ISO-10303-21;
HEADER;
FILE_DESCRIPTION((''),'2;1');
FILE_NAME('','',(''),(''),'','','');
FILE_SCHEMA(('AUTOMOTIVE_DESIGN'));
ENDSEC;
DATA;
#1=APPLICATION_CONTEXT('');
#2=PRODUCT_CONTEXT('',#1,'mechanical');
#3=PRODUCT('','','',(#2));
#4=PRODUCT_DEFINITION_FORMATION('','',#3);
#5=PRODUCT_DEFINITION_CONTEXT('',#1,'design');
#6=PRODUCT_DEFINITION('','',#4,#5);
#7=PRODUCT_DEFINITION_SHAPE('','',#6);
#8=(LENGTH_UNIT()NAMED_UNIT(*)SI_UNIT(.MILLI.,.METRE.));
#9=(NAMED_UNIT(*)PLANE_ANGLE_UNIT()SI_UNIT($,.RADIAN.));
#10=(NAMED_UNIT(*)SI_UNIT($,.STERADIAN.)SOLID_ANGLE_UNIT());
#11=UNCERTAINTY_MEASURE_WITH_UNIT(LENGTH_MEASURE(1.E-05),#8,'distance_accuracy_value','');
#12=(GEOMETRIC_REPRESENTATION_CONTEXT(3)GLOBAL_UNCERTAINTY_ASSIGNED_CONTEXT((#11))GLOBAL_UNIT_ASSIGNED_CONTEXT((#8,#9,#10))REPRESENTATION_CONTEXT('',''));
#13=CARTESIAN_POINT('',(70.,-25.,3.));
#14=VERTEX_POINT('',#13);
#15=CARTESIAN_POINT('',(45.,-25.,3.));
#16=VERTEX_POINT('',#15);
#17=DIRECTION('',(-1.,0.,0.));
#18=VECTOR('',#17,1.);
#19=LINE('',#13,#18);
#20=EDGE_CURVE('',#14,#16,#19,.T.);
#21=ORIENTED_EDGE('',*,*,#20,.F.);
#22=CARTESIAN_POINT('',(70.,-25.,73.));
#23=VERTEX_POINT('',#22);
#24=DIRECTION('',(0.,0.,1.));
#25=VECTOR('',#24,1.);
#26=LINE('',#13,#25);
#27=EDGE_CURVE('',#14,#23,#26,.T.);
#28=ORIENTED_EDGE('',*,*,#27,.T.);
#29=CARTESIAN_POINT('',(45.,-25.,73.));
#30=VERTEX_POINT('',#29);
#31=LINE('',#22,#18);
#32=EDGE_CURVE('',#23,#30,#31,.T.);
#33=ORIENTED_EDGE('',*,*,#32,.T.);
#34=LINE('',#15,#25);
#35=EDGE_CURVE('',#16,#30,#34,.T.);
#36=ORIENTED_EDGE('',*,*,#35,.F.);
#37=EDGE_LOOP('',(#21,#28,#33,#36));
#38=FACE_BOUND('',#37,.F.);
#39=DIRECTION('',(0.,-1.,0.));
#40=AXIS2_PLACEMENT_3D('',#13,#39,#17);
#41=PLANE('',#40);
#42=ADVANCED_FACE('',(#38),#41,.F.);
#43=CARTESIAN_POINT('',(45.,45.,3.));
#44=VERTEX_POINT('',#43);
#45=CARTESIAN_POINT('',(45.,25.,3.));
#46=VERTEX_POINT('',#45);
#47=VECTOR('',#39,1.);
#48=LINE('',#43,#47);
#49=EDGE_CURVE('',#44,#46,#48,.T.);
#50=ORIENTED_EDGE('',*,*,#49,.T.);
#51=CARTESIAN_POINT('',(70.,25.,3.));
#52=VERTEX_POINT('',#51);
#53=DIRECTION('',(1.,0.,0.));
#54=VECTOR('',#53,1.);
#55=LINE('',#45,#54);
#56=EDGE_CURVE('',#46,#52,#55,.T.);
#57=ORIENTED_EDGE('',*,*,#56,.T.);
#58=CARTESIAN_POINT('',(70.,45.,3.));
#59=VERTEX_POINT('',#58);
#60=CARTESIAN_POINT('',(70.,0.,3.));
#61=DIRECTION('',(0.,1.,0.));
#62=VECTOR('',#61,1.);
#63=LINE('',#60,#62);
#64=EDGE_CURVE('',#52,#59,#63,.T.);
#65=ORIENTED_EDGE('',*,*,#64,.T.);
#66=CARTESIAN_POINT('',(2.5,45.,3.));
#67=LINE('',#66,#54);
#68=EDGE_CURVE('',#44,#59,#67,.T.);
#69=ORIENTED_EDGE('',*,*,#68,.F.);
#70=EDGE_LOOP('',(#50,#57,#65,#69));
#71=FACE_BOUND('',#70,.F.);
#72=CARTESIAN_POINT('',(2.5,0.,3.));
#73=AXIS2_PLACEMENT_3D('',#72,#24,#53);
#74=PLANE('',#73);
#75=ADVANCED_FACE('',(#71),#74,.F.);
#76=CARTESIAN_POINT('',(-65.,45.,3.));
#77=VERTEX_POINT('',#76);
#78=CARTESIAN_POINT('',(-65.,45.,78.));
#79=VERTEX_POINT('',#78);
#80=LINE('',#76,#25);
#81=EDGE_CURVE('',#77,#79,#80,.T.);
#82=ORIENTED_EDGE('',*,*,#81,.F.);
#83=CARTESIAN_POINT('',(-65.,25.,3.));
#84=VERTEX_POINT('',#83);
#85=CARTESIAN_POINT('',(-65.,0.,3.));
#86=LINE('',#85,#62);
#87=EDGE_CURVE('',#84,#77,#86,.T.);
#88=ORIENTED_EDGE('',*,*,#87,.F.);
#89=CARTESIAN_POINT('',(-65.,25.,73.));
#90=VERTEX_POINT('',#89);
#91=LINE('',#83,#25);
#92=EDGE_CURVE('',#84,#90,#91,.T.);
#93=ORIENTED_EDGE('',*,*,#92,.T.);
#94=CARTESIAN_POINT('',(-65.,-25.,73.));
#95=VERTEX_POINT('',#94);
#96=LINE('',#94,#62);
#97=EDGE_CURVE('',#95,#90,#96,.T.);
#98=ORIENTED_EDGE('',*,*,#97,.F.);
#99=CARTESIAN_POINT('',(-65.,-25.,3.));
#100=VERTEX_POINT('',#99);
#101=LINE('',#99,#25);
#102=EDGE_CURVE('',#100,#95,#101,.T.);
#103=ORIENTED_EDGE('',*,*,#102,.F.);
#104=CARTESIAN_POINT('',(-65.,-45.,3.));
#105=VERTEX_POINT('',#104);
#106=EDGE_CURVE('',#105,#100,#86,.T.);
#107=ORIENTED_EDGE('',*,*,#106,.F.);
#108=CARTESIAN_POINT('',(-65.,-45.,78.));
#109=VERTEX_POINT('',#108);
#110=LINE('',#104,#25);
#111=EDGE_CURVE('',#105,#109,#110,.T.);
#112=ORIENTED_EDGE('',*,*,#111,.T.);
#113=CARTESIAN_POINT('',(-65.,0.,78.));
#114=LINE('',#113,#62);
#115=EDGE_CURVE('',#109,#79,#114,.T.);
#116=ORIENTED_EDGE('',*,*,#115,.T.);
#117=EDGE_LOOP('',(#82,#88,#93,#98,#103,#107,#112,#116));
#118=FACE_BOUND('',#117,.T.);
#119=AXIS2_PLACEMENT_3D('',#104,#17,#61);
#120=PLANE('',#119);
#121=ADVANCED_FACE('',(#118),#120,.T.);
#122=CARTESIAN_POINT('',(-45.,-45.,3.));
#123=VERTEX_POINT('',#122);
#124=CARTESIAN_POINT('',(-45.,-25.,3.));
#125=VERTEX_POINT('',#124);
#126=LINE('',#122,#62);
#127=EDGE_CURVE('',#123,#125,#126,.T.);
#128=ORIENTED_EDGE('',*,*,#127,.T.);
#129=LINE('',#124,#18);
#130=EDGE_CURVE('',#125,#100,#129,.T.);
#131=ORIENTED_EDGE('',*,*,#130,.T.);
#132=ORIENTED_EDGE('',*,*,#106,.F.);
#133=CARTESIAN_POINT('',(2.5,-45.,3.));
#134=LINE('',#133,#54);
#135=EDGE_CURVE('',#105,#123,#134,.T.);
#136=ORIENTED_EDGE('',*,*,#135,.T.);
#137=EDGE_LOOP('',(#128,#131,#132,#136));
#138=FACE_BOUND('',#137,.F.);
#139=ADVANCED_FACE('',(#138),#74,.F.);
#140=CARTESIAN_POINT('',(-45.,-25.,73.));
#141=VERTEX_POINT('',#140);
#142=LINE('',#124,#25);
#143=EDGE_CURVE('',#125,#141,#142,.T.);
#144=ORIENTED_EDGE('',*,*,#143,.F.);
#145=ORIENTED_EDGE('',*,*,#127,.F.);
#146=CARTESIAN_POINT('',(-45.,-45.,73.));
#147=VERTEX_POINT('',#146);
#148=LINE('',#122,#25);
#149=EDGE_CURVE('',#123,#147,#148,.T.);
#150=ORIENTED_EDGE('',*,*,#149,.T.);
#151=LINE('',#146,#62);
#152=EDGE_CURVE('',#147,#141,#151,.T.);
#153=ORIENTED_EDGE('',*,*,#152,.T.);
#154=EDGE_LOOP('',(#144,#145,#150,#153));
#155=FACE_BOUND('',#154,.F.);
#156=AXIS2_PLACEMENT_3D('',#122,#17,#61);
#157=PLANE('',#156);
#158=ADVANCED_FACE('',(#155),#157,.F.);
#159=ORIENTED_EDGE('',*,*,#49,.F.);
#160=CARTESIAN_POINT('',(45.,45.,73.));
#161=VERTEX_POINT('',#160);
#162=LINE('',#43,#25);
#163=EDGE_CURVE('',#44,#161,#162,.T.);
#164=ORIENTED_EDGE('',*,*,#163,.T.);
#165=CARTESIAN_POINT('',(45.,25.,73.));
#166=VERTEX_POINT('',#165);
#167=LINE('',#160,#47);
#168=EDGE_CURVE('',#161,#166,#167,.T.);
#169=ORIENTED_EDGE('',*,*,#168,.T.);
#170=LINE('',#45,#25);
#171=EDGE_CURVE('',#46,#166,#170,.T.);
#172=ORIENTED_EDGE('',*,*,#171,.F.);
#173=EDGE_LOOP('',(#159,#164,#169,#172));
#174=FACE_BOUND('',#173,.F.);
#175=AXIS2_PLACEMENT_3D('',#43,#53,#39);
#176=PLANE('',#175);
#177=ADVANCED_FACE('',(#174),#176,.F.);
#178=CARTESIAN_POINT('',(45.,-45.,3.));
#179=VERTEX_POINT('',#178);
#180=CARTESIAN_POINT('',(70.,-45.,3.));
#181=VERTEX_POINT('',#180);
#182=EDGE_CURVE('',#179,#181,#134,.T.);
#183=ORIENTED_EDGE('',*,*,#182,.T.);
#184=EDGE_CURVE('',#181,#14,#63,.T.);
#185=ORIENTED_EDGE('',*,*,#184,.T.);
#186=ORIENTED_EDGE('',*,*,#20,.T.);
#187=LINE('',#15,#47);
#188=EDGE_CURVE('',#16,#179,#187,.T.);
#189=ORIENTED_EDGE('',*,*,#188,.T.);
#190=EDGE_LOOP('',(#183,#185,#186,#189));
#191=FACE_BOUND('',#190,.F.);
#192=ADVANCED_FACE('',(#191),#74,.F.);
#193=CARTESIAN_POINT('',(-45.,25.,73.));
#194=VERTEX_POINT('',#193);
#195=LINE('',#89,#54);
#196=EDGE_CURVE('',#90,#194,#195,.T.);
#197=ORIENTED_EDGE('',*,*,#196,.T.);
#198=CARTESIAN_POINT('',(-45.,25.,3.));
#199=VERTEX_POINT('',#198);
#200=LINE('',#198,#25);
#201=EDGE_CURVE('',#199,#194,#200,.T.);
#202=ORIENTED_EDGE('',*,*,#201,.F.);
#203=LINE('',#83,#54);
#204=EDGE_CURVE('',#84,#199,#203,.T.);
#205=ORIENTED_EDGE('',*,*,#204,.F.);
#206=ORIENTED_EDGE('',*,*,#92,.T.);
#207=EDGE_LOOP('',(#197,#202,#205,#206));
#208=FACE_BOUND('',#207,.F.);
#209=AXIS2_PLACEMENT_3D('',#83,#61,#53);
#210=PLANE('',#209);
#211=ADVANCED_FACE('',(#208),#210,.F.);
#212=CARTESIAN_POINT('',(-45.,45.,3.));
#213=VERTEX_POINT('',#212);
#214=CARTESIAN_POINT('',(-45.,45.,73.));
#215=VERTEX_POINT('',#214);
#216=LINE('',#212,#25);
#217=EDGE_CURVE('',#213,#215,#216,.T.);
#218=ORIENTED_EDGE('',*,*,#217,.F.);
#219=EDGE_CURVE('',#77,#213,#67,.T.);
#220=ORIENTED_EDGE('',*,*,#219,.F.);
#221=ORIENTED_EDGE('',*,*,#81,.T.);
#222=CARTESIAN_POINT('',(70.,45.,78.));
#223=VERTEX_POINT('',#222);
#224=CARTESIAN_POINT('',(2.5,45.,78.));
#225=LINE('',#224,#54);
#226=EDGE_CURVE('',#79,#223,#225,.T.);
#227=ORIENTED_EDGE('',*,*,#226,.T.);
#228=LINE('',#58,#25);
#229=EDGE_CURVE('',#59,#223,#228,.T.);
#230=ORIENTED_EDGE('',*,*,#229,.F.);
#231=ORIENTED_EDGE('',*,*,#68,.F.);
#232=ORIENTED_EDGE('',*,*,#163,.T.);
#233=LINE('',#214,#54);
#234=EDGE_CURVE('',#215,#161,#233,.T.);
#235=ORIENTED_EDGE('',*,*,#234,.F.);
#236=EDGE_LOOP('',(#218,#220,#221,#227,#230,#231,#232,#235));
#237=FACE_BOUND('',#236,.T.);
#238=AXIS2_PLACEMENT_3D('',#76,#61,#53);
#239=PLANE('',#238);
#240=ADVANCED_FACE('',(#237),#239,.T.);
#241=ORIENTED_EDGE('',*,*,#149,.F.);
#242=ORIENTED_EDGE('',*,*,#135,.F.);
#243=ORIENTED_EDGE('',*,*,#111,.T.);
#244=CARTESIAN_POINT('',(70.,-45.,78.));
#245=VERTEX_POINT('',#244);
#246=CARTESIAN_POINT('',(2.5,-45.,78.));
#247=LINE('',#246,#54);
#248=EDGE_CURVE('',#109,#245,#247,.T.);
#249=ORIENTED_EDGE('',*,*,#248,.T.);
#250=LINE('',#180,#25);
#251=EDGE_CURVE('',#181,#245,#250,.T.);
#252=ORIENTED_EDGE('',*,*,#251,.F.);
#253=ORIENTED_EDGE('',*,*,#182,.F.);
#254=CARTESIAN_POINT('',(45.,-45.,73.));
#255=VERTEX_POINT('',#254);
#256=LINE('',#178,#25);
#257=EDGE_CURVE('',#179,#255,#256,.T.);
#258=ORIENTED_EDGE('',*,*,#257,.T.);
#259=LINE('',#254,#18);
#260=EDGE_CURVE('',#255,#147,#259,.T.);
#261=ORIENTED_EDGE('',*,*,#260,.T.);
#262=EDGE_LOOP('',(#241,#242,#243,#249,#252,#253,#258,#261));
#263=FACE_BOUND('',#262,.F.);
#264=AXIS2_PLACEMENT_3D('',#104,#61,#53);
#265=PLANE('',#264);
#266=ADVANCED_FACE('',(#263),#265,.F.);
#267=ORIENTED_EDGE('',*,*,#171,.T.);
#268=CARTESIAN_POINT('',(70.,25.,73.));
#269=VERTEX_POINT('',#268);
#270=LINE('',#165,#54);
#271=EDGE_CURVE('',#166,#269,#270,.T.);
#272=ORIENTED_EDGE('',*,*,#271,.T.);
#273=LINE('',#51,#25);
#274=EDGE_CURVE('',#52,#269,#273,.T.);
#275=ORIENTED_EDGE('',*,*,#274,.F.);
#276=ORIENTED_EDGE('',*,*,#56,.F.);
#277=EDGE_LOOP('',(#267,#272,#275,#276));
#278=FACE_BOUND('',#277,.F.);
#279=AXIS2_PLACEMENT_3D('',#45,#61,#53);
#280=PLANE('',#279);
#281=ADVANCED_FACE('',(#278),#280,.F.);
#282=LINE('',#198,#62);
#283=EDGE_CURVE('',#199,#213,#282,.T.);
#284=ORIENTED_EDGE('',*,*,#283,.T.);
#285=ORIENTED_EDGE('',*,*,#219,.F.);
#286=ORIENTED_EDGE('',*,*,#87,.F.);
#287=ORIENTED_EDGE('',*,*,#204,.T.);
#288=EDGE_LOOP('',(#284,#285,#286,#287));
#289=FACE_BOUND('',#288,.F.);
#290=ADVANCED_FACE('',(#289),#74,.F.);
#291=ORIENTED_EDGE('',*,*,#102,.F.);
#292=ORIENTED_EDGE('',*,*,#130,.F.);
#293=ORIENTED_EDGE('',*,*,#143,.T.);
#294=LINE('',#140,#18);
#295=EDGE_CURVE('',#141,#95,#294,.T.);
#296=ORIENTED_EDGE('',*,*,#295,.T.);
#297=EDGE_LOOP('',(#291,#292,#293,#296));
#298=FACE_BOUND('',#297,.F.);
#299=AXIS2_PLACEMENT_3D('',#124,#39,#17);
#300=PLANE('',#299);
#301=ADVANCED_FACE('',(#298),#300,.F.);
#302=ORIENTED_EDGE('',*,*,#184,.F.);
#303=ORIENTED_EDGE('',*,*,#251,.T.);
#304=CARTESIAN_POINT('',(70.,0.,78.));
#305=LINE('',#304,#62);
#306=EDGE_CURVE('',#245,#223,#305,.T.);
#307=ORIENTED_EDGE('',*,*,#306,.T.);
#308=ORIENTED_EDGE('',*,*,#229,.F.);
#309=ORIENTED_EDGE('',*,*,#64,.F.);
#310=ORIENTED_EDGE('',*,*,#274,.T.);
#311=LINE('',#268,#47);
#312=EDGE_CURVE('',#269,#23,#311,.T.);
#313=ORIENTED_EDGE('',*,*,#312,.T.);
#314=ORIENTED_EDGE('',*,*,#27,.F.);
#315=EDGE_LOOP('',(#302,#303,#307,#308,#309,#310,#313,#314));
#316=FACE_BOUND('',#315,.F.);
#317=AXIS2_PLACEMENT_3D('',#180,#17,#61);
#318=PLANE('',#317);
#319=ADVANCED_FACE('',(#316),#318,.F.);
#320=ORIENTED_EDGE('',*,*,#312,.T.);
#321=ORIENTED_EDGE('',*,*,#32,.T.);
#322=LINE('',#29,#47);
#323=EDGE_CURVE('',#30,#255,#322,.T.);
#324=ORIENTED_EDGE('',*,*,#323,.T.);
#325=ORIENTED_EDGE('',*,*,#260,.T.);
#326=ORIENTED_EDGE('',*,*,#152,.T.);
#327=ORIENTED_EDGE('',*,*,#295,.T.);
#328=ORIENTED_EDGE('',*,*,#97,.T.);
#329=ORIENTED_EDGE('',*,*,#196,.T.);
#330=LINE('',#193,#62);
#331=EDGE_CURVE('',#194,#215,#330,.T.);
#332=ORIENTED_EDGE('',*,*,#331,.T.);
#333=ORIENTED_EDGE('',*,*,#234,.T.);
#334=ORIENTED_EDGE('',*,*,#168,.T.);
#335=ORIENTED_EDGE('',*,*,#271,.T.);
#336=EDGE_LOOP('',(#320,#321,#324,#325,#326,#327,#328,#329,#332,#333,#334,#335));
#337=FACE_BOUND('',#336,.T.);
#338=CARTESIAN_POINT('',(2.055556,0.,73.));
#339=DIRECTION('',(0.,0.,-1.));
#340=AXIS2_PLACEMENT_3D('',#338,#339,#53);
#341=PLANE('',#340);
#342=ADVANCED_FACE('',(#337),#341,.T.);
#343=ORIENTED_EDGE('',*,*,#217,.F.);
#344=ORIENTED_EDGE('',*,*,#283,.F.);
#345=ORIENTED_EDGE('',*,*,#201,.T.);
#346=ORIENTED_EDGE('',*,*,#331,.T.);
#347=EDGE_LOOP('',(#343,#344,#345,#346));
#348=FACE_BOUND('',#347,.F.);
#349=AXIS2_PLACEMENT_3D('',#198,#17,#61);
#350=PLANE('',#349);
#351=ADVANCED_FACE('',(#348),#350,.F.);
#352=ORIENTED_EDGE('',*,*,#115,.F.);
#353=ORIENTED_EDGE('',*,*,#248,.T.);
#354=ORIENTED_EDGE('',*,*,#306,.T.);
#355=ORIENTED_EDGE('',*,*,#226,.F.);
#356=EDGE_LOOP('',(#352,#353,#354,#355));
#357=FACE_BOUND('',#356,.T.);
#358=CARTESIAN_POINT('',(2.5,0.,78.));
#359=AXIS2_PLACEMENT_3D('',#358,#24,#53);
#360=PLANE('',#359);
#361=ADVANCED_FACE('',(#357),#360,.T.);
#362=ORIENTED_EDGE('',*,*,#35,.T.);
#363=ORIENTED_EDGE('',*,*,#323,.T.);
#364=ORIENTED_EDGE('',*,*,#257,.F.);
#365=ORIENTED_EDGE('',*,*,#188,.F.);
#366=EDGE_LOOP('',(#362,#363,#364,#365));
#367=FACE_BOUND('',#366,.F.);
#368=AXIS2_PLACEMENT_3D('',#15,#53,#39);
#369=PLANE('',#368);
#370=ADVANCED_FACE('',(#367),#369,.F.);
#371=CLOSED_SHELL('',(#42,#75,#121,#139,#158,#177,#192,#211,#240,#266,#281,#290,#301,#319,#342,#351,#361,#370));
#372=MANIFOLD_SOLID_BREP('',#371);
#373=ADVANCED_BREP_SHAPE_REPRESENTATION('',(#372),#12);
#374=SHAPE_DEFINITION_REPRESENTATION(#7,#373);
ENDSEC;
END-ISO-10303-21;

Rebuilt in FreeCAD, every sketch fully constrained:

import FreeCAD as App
import Part
import Sketcher
from FreeCAD import Vector
Q = App.Units.Quantity

doc = App.newDocument("Part")
params = doc.addObject("Spreadsheet::Sheet", "Params")
for row, (alias, value) in enumerate([
    ("sketch1_diameter", "6.2 mm"),
    ("sketch1_height", "10 mm"),
    ("revolution_angle", "360 deg"),
    ("sketch2_width", "135 mm"),
    ("sketch2_height", "90 mm"),
    ("pad1_length", "75 mm"),
    ("sketch3_width", "20 mm"),
    ("sketch3_width2", "90 mm"),
    ("sketch3_width3", "25 mm"),
    ("sketch3_height", "50 mm"),
    ("pocket1_length", "70 mm"),
], start=1):
    params.set(f"A{row}", alias)
    params.set(f"B{row}", "=" + value)
    params.setAlias(f"B{row}", alias)

body = doc.addObject("PartDesign::Body", "Body")

# Sketch on XZ plane
sketch1 = body.newObject("Sketcher::SketchObject", "Sketch")
sketch1.AttachmentSupport = (doc.getObject("XZ_Plane"), [""])
sketch1.MapMode = "FlatFace"
sketch1.addGeometry(Part.Circle(Vector(15, 79, 0), Vector(0, 0, 1), 3.1), False)
sketch1.addGeometry(Part.LineSegment(Vector(-20, 79, 0), Vector(-20, 89, 0)), True)  # axis
sketch1.addConstraint(Sketcher.Constraint("Vertical", 1))
sketch1.addConstraint(Sketcher.Constraint("Horizontal", 0, 3, 1, 1))
sketch1.addConstraint(Sketcher.Constraint("Diameter", 0, Q("6.2 mm")))
sketch1.addConstraint(Sketcher.Constraint("DistanceY", 1, 1, 1, 2, Q("10 mm")))
sketch1.addConstraint(Sketcher.Constraint("DistanceX", -1, 1, 0, 3, Q("15 mm")))
sketch1.addConstraint(Sketcher.Constraint("DistanceY", -1, 1, 0, 3, Q("79 mm")))
sketch1.addConstraint(Sketcher.Constraint("DistanceX", 1, 1, -1, 1, Q("20 mm")))
sketch1.setExpression("Constraints[2]", "Params.sketch1_diameter")
sketch1.setExpression("Constraints[3]", "Params.sketch1_height")
revolution = body.newObject("PartDesign::Revolution", "Revolution")
revolution.Profile = sketch1
revolution.ReferenceAxis = (sketch1, ["Axis0"])
revolution.setExpression("Angle", "Params.revolution_angle")
body2 = doc.addObject("PartDesign::Body", "Body001")

# Sketch on XY plane
sketch2 = body2.newObject("Sketcher::SketchObject", "Sketch001")
sketch2.AttachmentSupport = (doc.getObject("XY_Plane001"), [""])
sketch2.MapMode = "FlatFace"
sketch2.addGeometry(Part.LineSegment(Vector(0, 90, 0), Vector(0, 0, 0)), False)
sketch2.addGeometry(Part.LineSegment(Vector(0, 0, 0), Vector(135, 0, 0)), False)
sketch2.addGeometry(Part.LineSegment(Vector(135, 0, 0), Vector(135, 90, 0)), False)
sketch2.addGeometry(Part.LineSegment(Vector(135, 90, 0), Vector(0, 90, 0)), False)
sketch2.addConstraint(Sketcher.Constraint("Coincident", 0, 2, 1, 1))
sketch2.addConstraint(Sketcher.Constraint("Coincident", 1, 2, 2, 1))
sketch2.addConstraint(Sketcher.Constraint("Coincident", 2, 2, 3, 1))
sketch2.addConstraint(Sketcher.Constraint("Coincident", 3, 2, 0, 1))
sketch2.addConstraint(Sketcher.Constraint("Vertical", 0))
sketch2.addConstraint(Sketcher.Constraint("Horizontal", 1))
sketch2.addConstraint(Sketcher.Constraint("Vertical", 2))
sketch2.addConstraint(Sketcher.Constraint("Horizontal", 3))
sketch2.addConstraint(Sketcher.Constraint("Coincident", 0, 2, -1, 1))
sketch2.addConstraint(Sketcher.Constraint("DistanceX", 1, 1, 1, 2, Q("135 mm")))
sketch2.addConstraint(Sketcher.Constraint("DistanceY", 0, 2, 0, 1, Q("90 mm")))
sketch2.setExpression("Constraints[9]", "Params.sketch2_width")
sketch2.setExpression("Constraints[10]", "Params.sketch2_height")
pad1 = body2.newObject("PartDesign::Pad", "Pad")
pad1.Profile = sketch2
pad1.setExpression("Length", "Params.pad1_length")
doc.recompute()

boolean = body2.newObject("PartDesign::Boolean", "Boolean")
boolean.Type = "Cut"
boolean.addObjects([body])
body3 = doc.addObject("PartDesign::Body", "Body002")
doc.recompute()

body2.Placement = App.Placement(Vector(-65, -45, 3), App.Rotation(Vector(0, 0, 1), 0))
boolean2 = body3.newObject("PartDesign::Boolean", "Boolean001")
boolean2.Type = "Fuse"
boolean2.addObjects([body2])

# Sketch on XY plane
sketch3 = body3.newObject("Sketcher::SketchObject", "Sketch002")
sketch3.AttachmentSupport = (doc.getObject("XY_Plane002"), [""])
sketch3.MapMode = "FlatFace"
sketch3.AttachmentOffset = App.Placement(Vector(0, 0, 3), App.Rotation())
sketch3.addGeometry(Part.LineSegment(Vector(-45, -45, 0), Vector(-45, -25, 0)), False)
sketch3.addGeometry(Part.LineSegment(Vector(-45, -25, 0), Vector(-65, -25, 0)), False)
sketch3.addGeometry(Part.LineSegment(Vector(-65, -25, 0), Vector(-65, 25, 0)), False)
sketch3.addGeometry(Part.LineSegment(Vector(-65, 25, 0), Vector(-45, 25, 0)), False)
sketch3.addGeometry(Part.LineSegment(Vector(-45, 25, 0), Vector(-45, 45, 0)), False)
sketch3.addGeometry(Part.LineSegment(Vector(-45, 45, 0), Vector(45, 45, 0)), False)
sketch3.addGeometry(Part.LineSegment(Vector(45, 45, 0), Vector(45, 25, 0)), False)
sketch3.addGeometry(Part.LineSegment(Vector(45, 25, 0), Vector(70, 25, 0)), False)
sketch3.addGeometry(Part.LineSegment(Vector(70, 25, 0), Vector(70, -25, 0)), False)
sketch3.addGeometry(Part.LineSegment(Vector(70, -25, 0), Vector(45, -25, 0)), False)
sketch3.addGeometry(Part.LineSegment(Vector(45, -25, 0), Vector(45, -45, 0)), False)
sketch3.addGeometry(Part.LineSegment(Vector(45, -45, 0), Vector(-45, -45, 0)), False)
sketch3.addConstraint(Sketcher.Constraint("Coincident", 0, 2, 1, 1))
sketch3.addConstraint(Sketcher.Constraint("Coincident", 1, 2, 2, 1))
sketch3.addConstraint(Sketcher.Constraint("Coincident", 2, 2, 3, 1))
sketch3.addConstraint(Sketcher.Constraint("Coincident", 3, 2, 4, 1))
sketch3.addConstraint(Sketcher.Constraint("Coincident", 4, 2, 5, 1))
sketch3.addConstraint(Sketcher.Constraint("Coincident", 5, 2, 6, 1))
sketch3.addConstraint(Sketcher.Constraint("Coincident", 6, 2, 7, 1))
sketch3.addConstraint(Sketcher.Constraint("Coincident", 7, 2, 8, 1))
sketch3.addConstraint(Sketcher.Constraint("Coincident", 8, 2, 9, 1))
sketch3.addConstraint(Sketcher.Constraint("Coincident", 9, 2, 10, 1))
sketch3.addConstraint(Sketcher.Constraint("Coincident", 10, 2, 11, 1))
sketch3.addConstraint(Sketcher.Constraint("Coincident", 11, 2, 0, 1))
sketch3.addConstraint(Sketcher.Constraint("Vertical", 0))
sketch3.addConstraint(Sketcher.Constraint("Horizontal", 1))
sketch3.addConstraint(Sketcher.Constraint("Vertical", 2))
sketch3.addConstraint(Sketcher.Constraint("Horizontal", 3))
sketch3.addConstraint(Sketcher.Constraint("Vertical", 4))
sketch3.addConstraint(Sketcher.Constraint("Horizontal", 5))
sketch3.addConstraint(Sketcher.Constraint("Vertical", 6))
sketch3.addConstraint(Sketcher.Constraint("Horizontal", 7))
sketch3.addConstraint(Sketcher.Constraint("Vertical", 8))
sketch3.addConstraint(Sketcher.Constraint("Horizontal", 9))
sketch3.addConstraint(Sketcher.Constraint("Vertical", 10))
sketch3.addConstraint(Sketcher.Constraint("Horizontal", 11))
sketch3.addConstraint(Sketcher.Constraint("Symmetric", 0, 2, 6, 2, -1, 1))
sketch3.addConstraint(Sketcher.Constraint("Symmetric", 3, 2, 9, 2, -1, 1))
sketch3.addConstraint(Sketcher.Constraint("Symmetric", 3, 2, 6, 2, -2))
sketch3.addConstraint(Sketcher.Constraint("Equal", 3, 0))
sketch3.addConstraint(Sketcher.Constraint("Equal", 0, 4))
sketch3.addConstraint(Sketcher.Constraint("DistanceX", 1, 2, 1, 1, Q("20 mm")))
sketch3.addConstraint(Sketcher.Constraint("DistanceX", 5, 1, 5, 2, Q("90 mm")))
sketch3.addConstraint(Sketcher.Constraint("DistanceX", 7, 1, 7, 2, Q("25 mm")))
sketch3.addConstraint(Sketcher.Constraint("DistanceY", 2, 1, 2, 2, Q("50 mm")))
sketch3.setExpression("Constraints[29]", "Params.sketch3_width")
sketch3.setExpression("Constraints[30]", "Params.sketch3_width2")
sketch3.setExpression("Constraints[31]", "Params.sketch3_width3")
sketch3.setExpression("Constraints[32]", "Params.sketch3_height")
pocket1 = body3.newObject("PartDesign::Pocket", "Pocket")
pocket1.Profile = sketch3
pocket1.setExpression("Length", "Params.pocket1_length")
pocket1.Reversed = True

doc.recompute()
